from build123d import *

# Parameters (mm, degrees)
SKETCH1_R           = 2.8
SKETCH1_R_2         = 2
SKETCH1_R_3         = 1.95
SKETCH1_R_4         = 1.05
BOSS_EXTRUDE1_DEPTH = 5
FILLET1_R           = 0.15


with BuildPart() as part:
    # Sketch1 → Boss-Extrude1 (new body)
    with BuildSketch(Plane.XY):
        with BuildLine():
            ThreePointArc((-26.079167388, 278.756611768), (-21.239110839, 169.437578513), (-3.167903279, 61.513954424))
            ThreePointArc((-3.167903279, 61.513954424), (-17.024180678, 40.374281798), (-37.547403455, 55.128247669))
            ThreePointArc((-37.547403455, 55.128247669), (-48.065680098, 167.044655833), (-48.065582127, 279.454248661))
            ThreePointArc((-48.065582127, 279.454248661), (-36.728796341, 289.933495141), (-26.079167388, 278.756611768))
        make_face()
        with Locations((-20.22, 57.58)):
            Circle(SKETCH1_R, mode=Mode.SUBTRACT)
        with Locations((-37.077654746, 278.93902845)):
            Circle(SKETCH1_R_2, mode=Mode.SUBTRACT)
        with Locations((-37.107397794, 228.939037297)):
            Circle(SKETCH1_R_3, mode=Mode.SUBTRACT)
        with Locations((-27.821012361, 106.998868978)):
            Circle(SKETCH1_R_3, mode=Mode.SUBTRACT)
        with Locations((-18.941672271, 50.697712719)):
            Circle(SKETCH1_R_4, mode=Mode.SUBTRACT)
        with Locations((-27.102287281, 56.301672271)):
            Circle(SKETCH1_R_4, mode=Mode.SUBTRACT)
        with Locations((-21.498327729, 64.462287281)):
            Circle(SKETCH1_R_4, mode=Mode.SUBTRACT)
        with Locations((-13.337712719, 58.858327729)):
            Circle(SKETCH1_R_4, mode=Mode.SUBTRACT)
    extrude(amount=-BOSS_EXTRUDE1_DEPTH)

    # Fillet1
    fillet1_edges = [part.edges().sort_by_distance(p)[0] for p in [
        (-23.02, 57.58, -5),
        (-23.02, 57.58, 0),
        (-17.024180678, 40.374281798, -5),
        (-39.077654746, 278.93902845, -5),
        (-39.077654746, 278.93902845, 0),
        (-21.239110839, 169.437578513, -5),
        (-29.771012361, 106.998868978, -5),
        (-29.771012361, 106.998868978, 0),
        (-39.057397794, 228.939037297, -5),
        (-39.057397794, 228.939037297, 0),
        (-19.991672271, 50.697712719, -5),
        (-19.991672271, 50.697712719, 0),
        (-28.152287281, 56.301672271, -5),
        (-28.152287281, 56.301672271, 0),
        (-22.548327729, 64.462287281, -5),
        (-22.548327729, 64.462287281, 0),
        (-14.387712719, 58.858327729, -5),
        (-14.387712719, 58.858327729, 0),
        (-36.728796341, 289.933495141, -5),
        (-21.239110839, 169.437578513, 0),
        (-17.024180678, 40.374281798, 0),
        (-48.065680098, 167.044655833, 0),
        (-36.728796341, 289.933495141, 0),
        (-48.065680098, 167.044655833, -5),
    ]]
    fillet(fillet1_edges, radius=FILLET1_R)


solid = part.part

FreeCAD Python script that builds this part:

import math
import FreeCAD as App
import Part
import Sketcher

V = App.Vector


def edges_at(feature, points):
    """Names of the edges that pass closest to the given points."""
    edges = feature.Shape.Edges
    near = lambda p: min(range(len(edges)), key=lambda i: edges[i].distToShape(Part.Vertex(*p))[0])
    return sorted({f"Edge{near(p) + 1}" for p in points})

doc = App.newDocument("Part")
body = doc.addObject("PartDesign::Body", "Body")

sketch1 = body.newObject("Sketcher::SketchObject", "Sketch")
sketch1.AttachmentSupport = (doc.getObject("XY_Plane"), [""])
sketch1.MapMode = "FlatFace"
sketch1.addGeometry(Part.ArcOfCircle(Part.Circle(V(873.8, 263.8, 0), V(0, 0, 1), 900), math.radians(179.05), math.radians(192.99)), False)
sketch1.addGeometry(Part.ArcOfCircle(Part.Circle(V(-37.1, 278.9, 0), V(0, 0, 1), 11), math.radians(-1), math.radians(177)), False)
sketch1.addGeometry(Part.ArcOfCircle(Part.Circle(V(1150.6, 223.2, 0), V(0, 0, 1), 1200), math.radians(177.32), math.radians(188.05)), False)
sketch1.addGeometry(Part.ArcOfCircle(Part.Circle(V(-20.2, 57.6, 0), V(0, 0, 1), 17.5), math.radians(-172), math.radians(13)), False)
sketch1.addGeometry(Part.Circle(V(-13.3, 58.9, 0), V(0, 0, 1), 1.1), False)
sketch1.addGeometry(Part.Circle(V(-18.9, 50.7, 0), V(0, 0, 1), 1.1), False)
sketch1.addGeometry(Part.Circle(V(-20.2, 57.6, 0), V(0, 0, 1), 2.8), False)
sketch1.addGeometry(Part.Circle(V(-21.5, 64.5, 0), V(0, 0, 1), 1.1), False)
sketch1.addGeometry(Part.Circle(V(-27.1, 56.3, 0), V(0, 0, 1), 1.1), False)
sketch1.addGeometry(Part.Circle(V(-27.8, 107, 0), V(0, 0, 1), 1.9), False)
sketch1.addGeometry(Part.Circle(V(-37.1, 228.9, 0), V(0, 0, 1), 1.9), False)
sketch1.addGeometry(Part.Circle(V(-37.1, 278.9, 0), V(0, 0, 1), 2), False)
sketch1.addConstraint(Sketcher.Constraint("Tangent", 0, 1, 1, 1))
sketch1.addConstraint(Sketcher.Constraint("Tangent", 1, 2, 2, 1))
sketch1.addConstraint(Sketcher.Constraint("Tangent", 2, 2, 3, 1))
sketch1.addConstraint(Sketcher.Constraint("Tangent", 3, 2, 0, 2))
sketch1.addConstraint(Sketcher.Constraint("Coincident", 6, 3, 3, 3))
sketch1.addConstraint(Sketcher.Constraint("Coincident", 11, 3, 1, 3))
sketch1.addConstraint(Sketcher.Constraint("Equal", 4, 5))
sketch1.addConstraint(Sketcher.Constraint("Equal", 5, 7))
sketch1.addConstraint(Sketcher.Constraint("Equal", 7, 8))
sketch1.addConstraint(Sketcher.Constraint("Equal", 9, 10))
sketch1.addConstraint(Sketcher.Constraint("Diameter", 11, 4.0))
sketch1.addConstraint(Sketcher.Constraint("Radius", 0, 900.0))
sketch1.addConstraint(Sketcher.Constraint("Radius", 1, 11.0))
sketch1.addConstraint(Sketcher.Constraint("Radius", 2, 1200.0))
sketch1.addConstraint(Sketcher.Constraint("Diameter", 4, 2.1))
sketch1.addConstraint(Sketcher.Constraint("Diameter", 6, 5.6))
sketch1.addConstraint(Sketcher.Constraint("Diameter", 9, 3.9))
sketch1.addConstraint(Sketcher.Constraint("Radius", 3, 17.5))
sketch1.addConstraint(Sketcher.Constraint("DistanceX", 3, 3, -1, 1, 20.22))
sketch1.addConstraint(Sketcher.Constraint("DistanceY", -1, 1, 3, 3, 57.58))
sketch1.addConstraint(Sketcher.Constraint("DistanceY", 4, 3, 1, 3, 220.080701))
sketch1.addConstraint(Sketcher.Constraint("DistanceX", 9, 3, 4, 3, 14.4833))
sketch1.addConstraint(Sketcher.Constraint("DistanceX", -1, 1, 0, 3, 873.797071))
sketch1.addConstraint(Sketcher.Constraint("DistanceY", -1, 1, 1, 3, 278.939028))
sketch1.addConstraint(Sketcher.Constraint("DistanceY", -1, 1, 9, 3, 106.998869))
sketch1.addConstraint(Sketcher.Constraint("DistanceX", 5, 3, 4, 3, 5.60396))
sketch1.addConstraint(Sketcher.Constraint("DistanceY", 4, 3, 7, 3, 5.60396))
sketch1.addConstraint(Sketcher.Constraint("DistanceY", 5, 3, 8, 3, 5.60396))
sketch1.addConstraint(Sketcher.Constraint("DistanceX", 8, 3, 7, 3, 5.60396))
sketch1.addConstraint(Sketcher.Constraint("DistanceY", 10, 3, 1, 3, 49.999991))
sketch1.addConstraint(Sketcher.Constraint("DistanceX", 10, 3, 7, 3, 15.60907))
sketch1.addConstraint(Sketcher.Constraint("DistanceX", 10, 3, 0, 1, 11.02823))
sketch1.addConstraint(Sketcher.Constraint("DistanceX", 1, 2, 9, 3, 20.24457))
sketch1.addConstraint(Sketcher.Constraint("DistanceY", 5, 3, 3, 2, 10.816242))
pad1 = body.newObject("PartDesign::Pad", "Pad")
pad1.Profile = sketch1
pad1.Length = 5
pad1.Reversed = True
doc.recompute()

fillet = body.newObject("PartDesign::Fillet", "Fillet")
fillet.Base = (pad1, edges_at(pad1, [
    (-23.02, 57.58, -5),
    (-23.02, 57.58, 0),
    (-17.024, 40.374, -5),
    (-39.078, 278.939, -5),
    (-39.078, 278.939, 0),
    (-21.239, 169.438, -5),
    (-29.771, 106.999, -5),
    (-29.771, 106.999, 0),
    (-39.057, 228.939, -5),
    (-39.057, 228.939, 0),
    (-19.992, 50.698, -5),
    (-19.992, 50.698, 0),
    (-28.152, 56.302, -5),
    (-28.152, 56.302, 0),
    (-22.548, 64.462, -5),
    (-22.548, 64.462, 0),
    (-14.388, 58.858, -5),
    (-14.388, 58.858, 0),
    (-36.729, 289.933, -5),
    (-21.239, 169.438, 0),
    (-17.024, 40.374, 0),
    (-48.066, 167.045, 0),
    (-36.729, 289.933, 0),
    (-48.066, 167.045, -5),
]))
fillet.Radius = 0.15

doc.recompute()
